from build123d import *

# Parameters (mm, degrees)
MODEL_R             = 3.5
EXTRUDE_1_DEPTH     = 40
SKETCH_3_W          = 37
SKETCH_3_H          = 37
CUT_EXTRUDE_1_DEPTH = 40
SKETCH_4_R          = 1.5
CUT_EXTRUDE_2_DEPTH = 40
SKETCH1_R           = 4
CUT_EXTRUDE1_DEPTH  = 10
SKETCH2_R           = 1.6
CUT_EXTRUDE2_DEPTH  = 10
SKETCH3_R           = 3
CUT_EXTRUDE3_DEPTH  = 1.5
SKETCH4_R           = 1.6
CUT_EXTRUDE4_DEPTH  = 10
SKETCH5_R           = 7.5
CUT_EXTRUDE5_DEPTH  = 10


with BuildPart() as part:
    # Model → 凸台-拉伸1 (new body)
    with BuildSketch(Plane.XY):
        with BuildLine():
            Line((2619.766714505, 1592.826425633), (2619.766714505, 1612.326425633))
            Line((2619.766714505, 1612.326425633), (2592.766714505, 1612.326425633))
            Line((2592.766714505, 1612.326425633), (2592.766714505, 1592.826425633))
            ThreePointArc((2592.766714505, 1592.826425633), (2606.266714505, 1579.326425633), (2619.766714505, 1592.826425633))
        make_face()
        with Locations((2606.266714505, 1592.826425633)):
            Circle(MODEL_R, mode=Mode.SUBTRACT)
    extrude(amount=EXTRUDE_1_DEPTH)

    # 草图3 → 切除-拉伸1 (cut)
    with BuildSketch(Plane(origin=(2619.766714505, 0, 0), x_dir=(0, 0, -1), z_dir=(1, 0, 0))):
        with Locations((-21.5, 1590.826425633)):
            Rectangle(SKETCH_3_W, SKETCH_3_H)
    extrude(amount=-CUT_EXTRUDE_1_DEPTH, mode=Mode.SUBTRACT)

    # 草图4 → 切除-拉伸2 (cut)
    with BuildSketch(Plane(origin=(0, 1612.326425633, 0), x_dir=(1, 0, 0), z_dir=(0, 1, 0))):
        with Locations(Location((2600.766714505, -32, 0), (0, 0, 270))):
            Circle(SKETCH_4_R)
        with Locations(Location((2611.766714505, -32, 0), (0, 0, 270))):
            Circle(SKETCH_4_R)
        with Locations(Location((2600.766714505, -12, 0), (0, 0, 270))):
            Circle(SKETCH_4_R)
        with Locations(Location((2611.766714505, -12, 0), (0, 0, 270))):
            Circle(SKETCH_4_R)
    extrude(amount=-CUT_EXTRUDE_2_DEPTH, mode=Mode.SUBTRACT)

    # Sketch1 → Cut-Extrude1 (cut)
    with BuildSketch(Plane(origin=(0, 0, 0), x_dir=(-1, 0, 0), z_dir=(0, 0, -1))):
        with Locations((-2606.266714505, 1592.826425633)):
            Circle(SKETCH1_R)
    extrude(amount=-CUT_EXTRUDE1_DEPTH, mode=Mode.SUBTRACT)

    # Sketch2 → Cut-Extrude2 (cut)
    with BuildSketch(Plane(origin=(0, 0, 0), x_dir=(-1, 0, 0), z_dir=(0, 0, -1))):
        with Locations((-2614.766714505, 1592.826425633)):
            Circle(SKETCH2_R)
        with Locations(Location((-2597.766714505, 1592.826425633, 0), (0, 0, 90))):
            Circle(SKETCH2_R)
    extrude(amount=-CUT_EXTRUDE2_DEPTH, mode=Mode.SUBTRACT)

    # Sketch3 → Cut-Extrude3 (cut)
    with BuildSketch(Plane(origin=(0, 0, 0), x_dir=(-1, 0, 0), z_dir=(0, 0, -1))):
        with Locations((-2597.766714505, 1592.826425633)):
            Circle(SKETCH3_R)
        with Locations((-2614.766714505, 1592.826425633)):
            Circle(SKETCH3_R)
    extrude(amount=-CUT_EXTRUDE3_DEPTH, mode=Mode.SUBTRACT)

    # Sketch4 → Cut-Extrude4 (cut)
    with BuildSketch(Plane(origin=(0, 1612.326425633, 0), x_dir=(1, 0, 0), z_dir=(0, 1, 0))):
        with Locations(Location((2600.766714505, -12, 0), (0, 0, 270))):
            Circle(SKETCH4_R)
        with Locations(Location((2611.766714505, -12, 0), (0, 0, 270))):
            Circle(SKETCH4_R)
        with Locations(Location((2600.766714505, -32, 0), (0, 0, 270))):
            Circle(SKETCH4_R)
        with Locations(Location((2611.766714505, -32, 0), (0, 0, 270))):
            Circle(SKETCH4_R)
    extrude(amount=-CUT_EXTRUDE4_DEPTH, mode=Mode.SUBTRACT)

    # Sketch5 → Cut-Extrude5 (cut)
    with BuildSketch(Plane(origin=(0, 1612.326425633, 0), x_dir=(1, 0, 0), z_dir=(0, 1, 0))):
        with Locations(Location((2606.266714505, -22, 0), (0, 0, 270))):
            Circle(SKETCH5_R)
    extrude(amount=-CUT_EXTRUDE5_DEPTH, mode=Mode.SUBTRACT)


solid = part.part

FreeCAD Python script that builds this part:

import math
import FreeCAD as App
import Part
import Sketcher

doc = App.newDocument("Part")
params = doc.addObject("Spreadsheet::Sheet", "Params")
for row, (alias, value) in enumerate([
    ("sketch1_diameter", "7 mm"),
    ("sketch1_radius", "13.5 mm"),
    ("sketch1_height", "19.5 mm"),
    ("pad1_length", "40 mm"),
    ("sketch2_width", "37 mm"),
    ("pocket1_length", "40 mm"),
    ("sketch3_diameter", "3 mm"),
    ("pocket2_length", "40 mm"),
    ("sketch4_diameter", "8 mm"),
    ("pocket3_length", "10 mm"),
    ("sketch5_diameter", "3.2 mm"),
    ("pocket4_length", "10 mm"),
    ("sketch6_diameter", "6 mm"),
    ("pocket5_length", "1.5 mm"),
    ("sketch7_diameter", "3.2 mm"),
    ("pocket6_length", "10 mm"),
    ("sketch8_diameter", "15 mm"),
    ("pocket7_length", "10 mm"),
], start=1):
    params.set(f"A{row}", alias)
    params.set(f"B{row}", "=" + value)
    params.setAlias(f"B{row}", alias)

body = doc.addObject("PartDesign::Body", "Body")

sketch1 = doc.addObject("Sketcher::SketchObject", "Sketch")
body.addObject(sketch1)
sketch1.AttachmentSupport = (doc.XY_Plane, [""])
sketch1.MapMode = "FlatFace"
sketch1.addGeometry(Part.LineSegment(App.Vector(2619.8, 1592.8, 0), App.Vector(2619.8, 1612.3, 0)), False)
sketch1.addGeometry(Part.LineSegment(App.Vector(2619.8, 1612.3, 0), App.Vector(2592.8, 1612.3, 0)), False)
sketch1.addGeometry(Part.LineSegment(App.Vector(2592.8, 1612.3, 0), App.Vector(2592.8, 1592.8, 0)), False)
sketch1.addGeometry(Part.ArcOfCircle(Part.Circle(App.Vector(2606.3, 1592.8, 0), App.Vector(0, 0, 1), 13.5), math.radians(180), math.radians(360)), False)
sketch1.addGeometry(Part.Circle(App.Vector(2606.3, 1592.8, 0), App.Vector(0, 0, 1), 3.5), False)
sketch1.addConstraint(Sketcher.Constraint("Coincident", 0, 2, 1, 1))
sketch1.addConstraint(Sketcher.Constraint("Coincident", 1, 2, 2, 1))
sketch1.addConstraint(Sketcher.Constraint("Tangent", 2, 2, 3, 1))
sketch1.addConstraint(Sketcher.Constraint("Tangent", 3, 2, 0, 1))
sketch1.addConstraint(Sketcher.Constraint("Vertical", 0))
sketch1.addConstraint(Sketcher.Constraint("Horizontal", 1))
sketch1.addConstraint(Sketcher.Constraint("Vertical", 2))
sketch1.addConstraint(Sketcher.Constraint("Coincident", 4, 3, 3, 3))
sketch1.addConstraint(Sketcher.Constraint("Diameter", 4, 7.0))
sketch1.addConstraint(Sketcher.Constraint("Radius", 3, 13.5))
sketch1.addConstraint(Sketcher.Constraint("DistanceY", 0, 1, 0, 2, 19.5))
sketch1.addConstraint(Sketcher.Constraint("DistanceX", -1, 1, 3, 3, 2606.266715))
sketch1.addConstraint(Sketcher.Constraint("DistanceY", -1, 1, 3, 3, 1592.826426))
sketch1.setExpression("Constraints[8]", "Params.sketch1_diameter")
sketch1.setExpression("Constraints[9]", "Params.sketch1_radius")
sketch1.setExpression("Constraints[10]", "Params.sketch1_height")
pad1 = doc.addObject("PartDesign::Pad", "Pad")
body.addObject(pad1)
pad1.Profile = sketch1
pad1.setExpression("Length", "Params.pad1_length")

sketch2 = doc.addObject("Sketcher::SketchObject", "Sketch001")
body.addObject(sketch2)
sketch2.AttachmentSupport = (doc.YZ_Plane, [""])
sketch2.MapMode = "FlatFace"
sketch2.AttachmentOffset = App.Placement(App.Vector(0, 0, 2619.766715), App.Rotation())
sketch2.addGeometry(Part.LineSegment(App.Vector(1609, 40, 0), App.Vector(1572, 40, 0)), False)
sketch2.addGeometry(Part.LineSegment(App.Vector(1572, 40, 0), App.Vector(1572, 3, 0)), False)
sketch2.addGeometry(Part.LineSegment(App.Vector(1572, 3, 0), App.Vector(1609, 3, 0)), False)
sketch2.addGeometry(Part.LineSegment(App.Vector(1609, 3, 0), App.Vector(1609, 40, 0)), False)
sketch2.addConstraint(Sketcher.Constraint("Coincident", 0, 2, 1, 1))
sketch2.addConstraint(Sketcher.Constraint("Coincident", 1, 2, 2, 1))
sketch2.addConstraint(Sketcher.Constraint("Coincident", 2, 2, 3, 1))
sketch2.addConstraint(Sketcher.Constraint("Coincident", 3, 2, 0, 1))
sketch2.addConstraint(Sketcher.Constraint("Horizontal", 0))
sketch2.addConstraint(Sketcher.Constraint("Vertical", 1))
sketch2.addConstraint(Sketcher.Constraint("Horizontal", 2))
sketch2.addConstraint(Sketcher.Constraint("Vertical", 3))
sketch2.addConstraint(Sketcher.Constraint("Equal", 2, 1))
sketch2.addConstraint(Sketcher.Constraint("DistanceX", 0, 2, 0, 1, 37.0))
sketch2.addConstraint(Sketcher.Constraint("DistanceY", -1, 1, 0, 2, 40.0))
sketch2.addConstraint(Sketcher.Constraint("DistanceX", -1, 1, 0, 2, 1572.326426))
sketch2.setExpression("Constraints[9]", "Params.sketch2_width")
pocket1 = doc.addObject("PartDesign::Pocket", "Pocket")
body.addObject(pocket1)
pocket1.Profile = sketch2
pocket1.setExpression("Length", "Params.pocket1_length")

sketch3 = doc.addObject("Sketcher::SketchObject", "Sketch002")
body.addObject(sketch3)
sketch3.AttachmentSupport = (doc.XZ_Plane, [""])
sketch3.MapMode = "FlatFace"
sketch3.AttachmentOffset = App.Placement(App.Vector(0, 0, -1612.326426), App.Rotation())
sketch3.addGeometry(Part.Circle(App.Vector(2600.8, 32, 0), App.Vector(0, 0, 1), 1.5), False)
sketch3.addGeometry(Part.Circle(App.Vector(2611.8, 32, 0), App.Vector(0, 0, 1), 1.5), False)
sketch3.addGeometry(Part.Circle(App.Vector(2600.8, 12, 0), App.Vector(0, 0, 1), 1.5), False)
sketch3.addGeometry(Part.Circle(App.Vector(2611.8, 12, 0), App.Vector(0, 0, 1), 1.5), False)
sketch3.addConstraint(Sketcher.Constraint("Equal", 0, 1))
sketch3.addConstraint(Sketcher.Constraint("Equal", 1, 2))
sketch3.addConstraint(Sketcher.Constraint("Equal", 2, 3))
sketch3.addConstraint(Sketcher.Constraint("Horizontal", 0, 3, 1, 3))
sketch3.addConstraint(Sketcher.Constraint("Horizontal", 2, 3, 3, 3))
sketch3.addConstraint(Sketcher.Constraint("Vertical", 0, 3, 2, 3))
sketch3.addConstraint(Sketcher.Constraint("Vertical", 1, 3, 3, 3))
sketch3.addConstraint(Sketcher.Constraint("Diameter", 0, 3.0))
sketch3.addConstraint(Sketcher.Constraint("DistanceY", -1, 1, 0, 3, 32.0))
sketch3.addConstraint(Sketcher.Constraint("DistanceY", -1, 1, 2, 3, 12.0))
sketch3.addConstraint(Sketcher.Constraint("DistanceX", 0, 3, 1, 3, 11.0))
sketch3.addConstraint(Sketcher.Constraint("DistanceX", -1, 1, 0, 3, 2600.766715))
sketch3.setExpression("Constraints[7]", "Params.sketch3_diameter")
pocket2 = doc.addObject("PartDesign::Pocket", "Pocket001")
body.addObject(pocket2)
pocket2.Profile = sketch3
pocket2.setExpression("Length", "Params.pocket2_length")
pocket2.Reversed = True

sketch4 = doc.addObject("Sketcher::SketchObject", "Sketch003")
body.addObject(sketch4)
sketch4.AttachmentSupport = (doc.XY_Plane, [""])
sketch4.MapMode = "FlatFace"
sketch4.addGeometry(Part.Circle(App.Vector(2606.3, 1592.8, 0), App.Vector(0, 0, 1), 4), False)
sketch4.addConstraint(Sketcher.Constraint("Diameter", 0, 8.0))
sketch4.addConstraint(Sketcher.Constraint("DistanceX", -1, 1, 0, 3, 2606.266715))
sketch4.addConstraint(Sketcher.Constraint("DistanceY", -1, 1, 0, 3, 1592.826426))
sketch4.setExpression("Constraints[0]", "Params.sketch4_diameter")
pocket3 = doc.addObject("PartDesign::Pocket", "Pocket002")
body.addObject(pocket3)
pocket3.Profile = sketch4
pocket3.setExpression("Length", "Params.pocket3_length")
pocket3.Reversed = True

sketch5 = doc.addObject("Sketcher::SketchObject", "Sketch004")
body.addObject(sketch5)
sketch5.AttachmentSupport = (doc.XY_Plane, [""])
sketch5.MapMode = "FlatFace"
sketch5.addGeometry(Part.Circle(App.Vector(2614.8, 1592.8, 0), App.Vector(0, 0, 1), 1.6), False)
sketch5.addGeometry(Part.Circle(App.Vector(2597.8, 1592.8, 0), App.Vector(0, 0, 1), 1.6), False)
sketch5.addConstraint(Sketcher.Constraint("Equal", 0, 1))
sketch5.addConstraint(Sketcher.Constraint("Horizontal", 0, 3, 1, 3))
sketch5.addConstraint(Sketcher.Constraint("Diameter", 0, 3.2))
sketch5.addConstraint(Sketcher.Constraint("DistanceX", 1, 3, 0, 3, 17.0))
sketch5.addConstraint(Sketcher.Constraint("DistanceX", -1, 1, 0, 3, 2614.766715))
sketch5.addConstraint(Sketcher.Constraint("DistanceY", -1, 1, 0, 3, 1592.826426))
sketch5.setExpression("Constraints[2]", "Params.sketch5_diameter")
pocket4 = doc.addObject("PartDesign::Pocket", "Pocket003")
body.addObject(pocket4)
pocket4.Profile = sketch5
pocket4.setExpression("Length", "Params.pocket4_length")
pocket4.Reversed = True

sketch6 = doc.addObject("Sketcher::SketchObject", "Sketch005")
body.addObject(sketch6)
sketch6.AttachmentSupport = (doc.XY_Plane, [""])
sketch6.MapMode = "FlatFace"
sketch6.addGeometry(Part.Circle(App.Vector(2597.8, 1592.8, 0), App.Vector(0, 0, 1), 3), False)
sketch6.addGeometry(Part.Circle(App.Vector(2614.8, 1592.8, 0), App.Vector(0, 0, 1), 3), False)
sketch6.addConstraint(Sketcher.Constraint("Equal", 0, 1))
sketch6.addConstraint(Sketcher.Constraint("Horizontal", 0, 3, 1, 3))
sketch6.addConstraint(Sketcher.Constraint("Diameter", 0, 6.0))
sketch6.addConstraint(Sketcher.Constraint("DistanceX", 0, 3, 1, 3, 17.0))
sketch6.addConstraint(Sketcher.Constraint("DistanceX", -1, 1, 0, 3, 2597.766715))
sketch6.addConstraint(Sketcher.Constraint("DistanceY", -1, 1, 0, 3, 1592.826426))
sketch6.setExpression("Constraints[2]", "Params.sketch6_diameter")
pocket5 = doc.addObject("PartDesign::Pocket", "Pocket004")
body.addObject(pocket5)
pocket5.Profile = sketch6
pocket5.setExpression("Length", "Params.pocket5_length")
pocket5.Reversed = True

sketch7 = doc.addObject("Sketcher::SketchObject", "Sketch006")
body.addObject(sketch7)
sketch7.AttachmentSupport = (doc.XZ_Plane, [""])
sketch7.MapMode = "FlatFace"
sketch7.AttachmentOffset = App.Placement(App.Vector(0, 0, -1612.326426), App.Rotation())
sketch7.addGeometry(Part.Circle(App.Vector(2600.8, 12, 0), App.Vector(0, 0, 1), 1.6), False)
sketch7.addGeometry(Part.Circle(App.Vector(2611.8, 12, 0), App.Vector(0, 0, 1), 1.6), False)
sketch7.addGeometry(Part.Circle(App.Vector(2600.8, 32, 0), App.Vector(0, 0, 1), 1.6), False)
sketch7.addGeometry(Part.Circle(App.Vector(2611.8, 32, 0), App.Vector(0, 0, 1), 1.6), False)
sketch7.addConstraint(Sketcher.Constraint("Equal", 0, 1))
sketch7.addConstraint(Sketcher.Constraint("Equal", 1, 2))
sketch7.addConstraint(Sketcher.Constraint("Equal", 2, 3))
sketch7.addConstraint(Sketcher.Constraint("Horizontal", 0, 3, 1, 3))
sketch7.addConstraint(Sketcher.Constraint("Horizontal", 2, 3, 3, 3))
sketch7.addConstraint(Sketcher.Constraint("Vertical", 0, 3, 2, 3))
sketch7.addConstraint(Sketcher.Constraint("Vertical", 1, 3, 3, 3))
sketch7.addConstraint(Sketcher.Constraint("Diameter", 0, 3.2))
sketch7.addConstraint(Sketcher.Constraint("DistanceY", -1, 1, 0, 3, 12.0))
sketch7.addConstraint(Sketcher.Constraint("DistanceY", -1, 1, 2, 3, 32.0))
sketch7.addConstraint(Sketcher.Constraint("DistanceX", 0, 3, 1, 3, 11.0))
sketch7.addConstraint(Sketcher.Constraint("DistanceX", -1, 1, 0, 3, 2600.766715))
sketch7.setExpression("Constraints[7]", "Params.sketch7_diameter")
pocket6 = doc.addObject("PartDesign::Pocket", "Pocket005")
body.addObject(pocket6)
pocket6.Profile = sketch7
pocket6.setExpression("Length", "Params.pocket6_length")
pocket6.Reversed = True

sketch8 = doc.addObject("Sketcher::SketchObject", "Sketch007")
body.addObject(sketch8)
sketch8.AttachmentSupport = (doc.XZ_Plane, [""])
sketch8.MapMode = "FlatFace"
sketch8.AttachmentOffset = App.Placement(App.Vector(0, 0, -1612.326426), App.Rotation())
sketch8.addGeometry(Part.Circle(App.Vector(2606, 22, 0), App.Vector(0, 0, 1), 8), False)
sketch8.addConstraint(Sketcher.Constraint("Diameter", 0, 15.0))
sketch8.addConstraint(Sketcher.Constraint("DistanceY", -1, 1, 0, 3, 22.0))
sketch8.addConstraint(Sketcher.Constraint("DistanceX", -1, 1, 0, 3, 2606.266715))
sketch8.setExpression("Constraints[0]", "Params.sketch8_diameter")
pocket7 = doc.addObject("PartDesign::Pocket", "Pocket006")
body.addObject(pocket7)
pocket7.Profile = sketch8
pocket7.setExpression("Length", "Params.pocket7_length")
pocket7.Reversed = True

doc.recompute()
